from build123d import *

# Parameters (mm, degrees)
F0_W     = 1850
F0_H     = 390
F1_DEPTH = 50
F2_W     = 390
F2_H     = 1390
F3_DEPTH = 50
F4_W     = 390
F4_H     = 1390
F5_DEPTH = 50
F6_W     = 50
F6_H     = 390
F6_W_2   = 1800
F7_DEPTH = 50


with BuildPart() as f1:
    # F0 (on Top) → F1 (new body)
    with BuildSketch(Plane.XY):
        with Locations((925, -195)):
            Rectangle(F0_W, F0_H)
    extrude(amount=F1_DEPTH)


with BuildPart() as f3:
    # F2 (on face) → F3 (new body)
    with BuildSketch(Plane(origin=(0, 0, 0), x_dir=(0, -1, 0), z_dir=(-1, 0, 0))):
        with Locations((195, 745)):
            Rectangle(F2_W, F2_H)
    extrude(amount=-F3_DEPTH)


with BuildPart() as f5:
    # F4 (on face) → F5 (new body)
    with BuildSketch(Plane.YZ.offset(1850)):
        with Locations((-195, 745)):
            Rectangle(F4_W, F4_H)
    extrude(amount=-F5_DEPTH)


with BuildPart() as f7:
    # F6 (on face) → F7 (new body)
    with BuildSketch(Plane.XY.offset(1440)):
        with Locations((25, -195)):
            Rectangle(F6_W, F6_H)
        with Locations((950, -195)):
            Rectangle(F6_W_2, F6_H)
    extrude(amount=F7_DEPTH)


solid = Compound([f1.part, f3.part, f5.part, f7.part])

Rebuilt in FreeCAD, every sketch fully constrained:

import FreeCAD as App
import Part
import Sketcher

doc = App.newDocument("Part")
body = doc.addObject("PartDesign::Body", "Body")

sketch1 = body.newObject("Sketcher::SketchObject", "Sketch")
sketch1.AttachmentSupport = (doc.getObject("XY_Plane"), [""])
sketch1.MapMode = "FlatFace"
sketch1.addGeometry([
    Part.LineSegment(App.Vector(0, 0, 0), App.Vector(0, -390, 0)),
    Part.LineSegment(App.Vector(0, -390, 0), App.Vector(1850, -390, 0)),
    Part.LineSegment(App.Vector(1850, -390, 0), App.Vector(1850, 0, 0)),
    Part.LineSegment(App.Vector(1850, 0, 0), App.Vector(0, 0, 0)),
], False)
sketch1.addConstraint([
    Sketcher.Constraint("Coincident", 0, 2, 1, 1),
    Sketcher.Constraint("Coincident", 1, 2, 2, 1),
    Sketcher.Constraint("Coincident", 2, 2, 3, 1),
    Sketcher.Constraint("Coincident", 3, 2, 0, 1),
    Sketcher.Constraint("Vertical", 0),
    Sketcher.Constraint("Horizontal", 1),
    Sketcher.Constraint("Vertical", 2),
    Sketcher.Constraint("Horizontal", 3),
    Sketcher.Constraint("Coincident", 3, 2, -1, 1),
    Sketcher.Constraint("DistanceX", 1, 1, 1, 2, 1850.0),
    Sketcher.Constraint("DistanceY", 0, 2, 0, 1, 390.0),
])
pad1 = body.newObject("PartDesign::Pad", "Pad")
pad1.Profile = sketch1
pad1.Length = 50
body2 = doc.addObject("PartDesign::Body", "Body001")

sketch2 = body2.newObject("Sketcher::SketchObject", "Sketch001")
sketch2.AttachmentSupport = (doc.getObject("YZ_Plane001"), [""])
sketch2.MapMode = "FlatFace"
sketch2.addGeometry([
    Part.LineSegment(App.Vector(0, 1440, 0), App.Vector(0, 50, 0)),
    Part.LineSegment(App.Vector(0, 50, 0), App.Vector(-390, 50, 0)),
    Part.LineSegment(App.Vector(-390, 50, 0), App.Vector(-390, 1440, 0)),
    Part.LineSegment(App.Vector(-390, 1440, 0), App.Vector(0, 1440, 0)),
], False)
sketch2.addConstraint([
    Sketcher.Constraint("Coincident", 0, 2, 1, 1),
    Sketcher.Constraint("Coincident", 1, 2, 2, 1),
    Sketcher.Constraint("Coincident", 2, 2, 3, 1),
    Sketcher.Constraint("Coincident", 3, 2, 0, 1),
    Sketcher.Constraint("Vertical", 0),
    Sketcher.Constraint("Horizontal", 1),
    Sketcher.Constraint("Vertical", 2),
    Sketcher.Constraint("Horizontal", 3),
    Sketcher.Constraint("PointOnObject", 0, 2, -2),
    Sketcher.Constraint("DistanceX", 1, 2, 1, 1, 390.0),
    Sketcher.Constraint("DistanceY", 0, 2, 0, 1, 1390.0),
    Sketcher.Constraint("DistanceY", -1, 1, 0, 2, 50.0),
])
pad2 = body2.newObject("PartDesign::Pad", "Pad001")
pad2.Profile = sketch2
pad2.Length = 50
body3 = doc.addObject("PartDesign::Body", "Body002")

sketch3 = body3.newObject("Sketcher::SketchObject", "Sketch002")
sketch3.AttachmentSupport = (doc.getObject("YZ_Plane002"), [""])
sketch3.MapMode = "FlatFace"
sketch3.AttachmentOffset = App.Placement(App.Vector(0, 0, 1850), App.Rotation())
sketch3.addGeometry([
    Part.LineSegment(App.Vector(-390, 1440, 0), App.Vector(-390, 50, 0)),
    Part.LineSegment(App.Vector(-390, 50, 0), App.Vector(0, 50, 0)),
    Part.LineSegment(App.Vector(0, 50, 0), App.Vector(0, 1440, 0)),
    Part.LineSegment(App.Vector(0, 1440, 0), App.Vector(-390, 1440, 0)),
], False)
sketch3.addConstraint([
    Sketcher.Constraint("Coincident", 0, 2, 1, 1),
    Sketcher.Constraint("Coincident", 1, 2, 2, 1),
    Sketcher.Constraint("Coincident", 2, 2, 3, 1),
    Sketcher.Constraint("Coincident", 3, 2, 0, 1),
    Sketcher.Constraint("Vertical", 0),
    Sketcher.Constraint("Horizontal", 1),
    Sketcher.Constraint("Vertical", 2),
    Sketcher.Constraint("Horizontal", 3),
    Sketcher.Constraint("PointOnObject", 1, 2, -2),
    Sketcher.Constraint("DistanceX", 1, 1, 1, 2, 390.0),
    Sketcher.Constraint("DistanceY", 0, 2, 0, 1, 1390.0),
    Sketcher.Constraint("DistanceY", -1, 1, 0, 2, 50.0),
])
pad3 = body3.newObject("PartDesign::Pad", "Pad002")
pad3.Profile = sketch3
pad3.Length = 50
pad3.Reversed = True
body4 = doc.addObject("PartDesign::Body", "Body003")

sketch4 = body4.newObject("Sketcher::SketchObject", "Sketch003")
sketch4.AttachmentSupport = (doc.getObject("XY_Plane003"), [""])
sketch4.MapMode = "FlatFace"
sketch4.AttachmentOffset = App.Placement(App.Vector(0, 0, 1440), App.Rotation())
sketch4.addGeometry([
    Part.LineSegment(App.Vector(0, 0, 0), App.Vector(0, -390, 0)),
    Part.LineSegment(App.Vector(0, -390, 0), App.Vector(1850, -390, 0)),
    Part.LineSegment(App.Vector(1850, -390, 0), App.Vector(1850, 0, 0)),
    Part.LineSegment(App.Vector(1850, 0, 0), App.Vector(0, 0, 0)),
], False)
sketch4.addConstraint([
    Sketcher.Constraint("Coincident", 0, 2, 1, 1),
    Sketcher.Constraint("Coincident", 1, 2, 2, 1),
    Sketcher.Constraint("Coincident", 2, 2, 3, 1),
    Sketcher.Constraint("Coincident", 3, 2, 0, 1),
    Sketcher.Constraint("Vertical", 0),
    Sketcher.Constraint("Horizontal", 1),
    Sketcher.Constraint("Vertical", 2),
    Sketcher.Constraint("Horizontal", 3),
    Sketcher.Constraint("Coincident", 3, 2, -1, 1),
    Sketcher.Constraint("DistanceX", 1, 1, 1, 2, 1850.0),
    Sketcher.Constraint("DistanceY", 0, 2, 0, 1, 390.0),
])
pad4 = body4.newObject("PartDesign::Pad", "Pad003")
pad4.Profile = sketch4
pad4.Length = 50

doc.recompute()
